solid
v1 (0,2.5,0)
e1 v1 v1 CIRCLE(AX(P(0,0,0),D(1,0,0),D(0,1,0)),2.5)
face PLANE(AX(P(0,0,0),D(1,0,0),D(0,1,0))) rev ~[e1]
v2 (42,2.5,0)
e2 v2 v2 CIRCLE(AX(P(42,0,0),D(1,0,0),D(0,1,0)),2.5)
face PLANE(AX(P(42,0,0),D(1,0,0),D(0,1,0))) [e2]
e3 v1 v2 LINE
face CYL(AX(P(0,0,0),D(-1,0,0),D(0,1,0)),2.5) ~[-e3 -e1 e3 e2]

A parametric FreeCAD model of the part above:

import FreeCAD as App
import Part
import Sketcher
from FreeCAD import Vector

doc = App.newDocument("Part")
body = doc.addObject("PartDesign::Body", "Body")

# Sketch on YZ plane
sketch1 = body.newObject("Sketcher::SketchObject", "Sketch")
sketch1.AttachmentSupport = (doc.getObject("YZ_Plane"), [""])
sketch1.MapMode = "FlatFace"
sketch1.addGeometry(Part.Circle(Vector(0, 0, 0), Vector(0, 0, 1), 2.5), False)
sketch1.addConstraint([
    Sketcher.Constraint("Coincident", 0, 3, -1, 1),
    Sketcher.Constraint("Diameter", 0, 5.0),
])
pad1 = body.newObject("PartDesign::Pad", "Pad")
pad1.Profile = sketch1
pad1.Length = 42

doc.recompute()
